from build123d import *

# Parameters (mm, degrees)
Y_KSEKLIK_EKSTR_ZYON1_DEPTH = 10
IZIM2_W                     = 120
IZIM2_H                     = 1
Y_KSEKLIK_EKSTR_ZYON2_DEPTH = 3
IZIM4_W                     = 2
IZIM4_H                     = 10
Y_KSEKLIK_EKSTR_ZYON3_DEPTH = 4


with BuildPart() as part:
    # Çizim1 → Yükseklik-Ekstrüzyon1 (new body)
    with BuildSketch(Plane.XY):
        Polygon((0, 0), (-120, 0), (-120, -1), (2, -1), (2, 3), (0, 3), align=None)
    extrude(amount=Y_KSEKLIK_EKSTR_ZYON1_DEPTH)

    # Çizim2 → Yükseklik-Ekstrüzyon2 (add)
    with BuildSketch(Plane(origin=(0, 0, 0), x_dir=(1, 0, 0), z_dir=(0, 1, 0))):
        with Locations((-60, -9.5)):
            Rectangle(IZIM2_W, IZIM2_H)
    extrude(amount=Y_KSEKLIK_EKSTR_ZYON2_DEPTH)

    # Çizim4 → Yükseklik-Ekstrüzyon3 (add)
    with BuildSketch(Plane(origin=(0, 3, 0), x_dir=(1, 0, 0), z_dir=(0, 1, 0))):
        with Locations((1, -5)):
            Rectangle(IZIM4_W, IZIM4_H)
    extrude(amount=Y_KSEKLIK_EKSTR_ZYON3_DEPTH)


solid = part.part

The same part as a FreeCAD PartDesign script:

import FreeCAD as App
import Part
import Sketcher

V = App.Vector

doc = App.newDocument("Part")
body = doc.addObject("PartDesign::Body", "Body")

# Sketch on XY plane
sketch1 = doc.addObject("Sketcher::SketchObject", "Sketch")
body.addObject(sketch1)
sketch1.AttachmentSupport = (doc.XY_Plane, [""])
sketch1.MapMode = "FlatFace"
sketch1.addGeometry([
    Part.LineSegment(V(0, 0, 0), V(-120, 0, 0)),  # 0
    Part.LineSegment(V(-120, 0, 0), V(-120, -1, 0)),  # 1
    Part.LineSegment(V(-120, -1, 0), V(2, -1, 0)),  # 2
    Part.LineSegment(V(2, -1, 0), V(2, 3, 0)),  # 3
    Part.LineSegment(V(2, 3, 0), V(0, 3, 0)),  # 4
    Part.LineSegment(V(0, 3, 0), V(0, 0, 0)),  # 5
], False)
sketch1.addConstraint([
    Sketcher.Constraint("Coincident", 0, 2, 1, 1),
    Sketcher.Constraint("Coincident", 1, 2, 2, 1),
    Sketcher.Constraint("Coincident", 2, 2, 3, 1),
    Sketcher.Constraint("Coincident", 3, 2, 4, 1),
    Sketcher.Constraint("Coincident", 4, 2, 5, 1),
    Sketcher.Constraint("Coincident", 5, 2, 0, 1),
    Sketcher.Constraint("Horizontal", 0),
    Sketcher.Constraint("Vertical", 1),
    Sketcher.Constraint("Horizontal", 2),
    Sketcher.Constraint("Vertical", 3),
    Sketcher.Constraint("Horizontal", 4),
    Sketcher.Constraint("Vertical", 5),
    Sketcher.Constraint("Coincident", 5, 2, -1, 1),
    Sketcher.Constraint("DistanceX", 0, 2, 0, 1, 120.0),
    Sketcher.Constraint("DistanceX", 2, 1, 2, 2, 122.0),
    Sketcher.Constraint("DistanceY", 1, 2, 1, 1, 1.0),
    Sketcher.Constraint("DistanceY", 3, 1, 3, 2, 4.0),
])
pad1 = doc.addObject("PartDesign::Pad", "Pad")
body.addObject(pad1)
pad1.Profile = sketch1
pad1.Length = 10

# Sketch on XZ plane
sketch2 = doc.addObject("Sketcher::SketchObject", "Sketch001")
body.addObject(sketch2)
sketch2.AttachmentSupport = (doc.XZ_Plane, [""])
sketch2.MapMode = "FlatFace"
sketch2.addGeometry([
    Part.LineSegment(V(-120, 9, 0), V(-120, 10, 0)),
    Part.LineSegment(V(-120, 10, 0), V(0, 10, 0)),
    Part.LineSegment(V(0, 10, 0), V(0, 9, 0)),
    Part.LineSegment(V(0, 9, 0), V(-120, 9, 0)),
], False)
sketch2.addConstraint([
    Sketcher.Constraint("Coincident", 0, 2, 1, 1),
    Sketcher.Constraint("Coincident", 1, 2, 2, 1),
    Sketcher.Constraint("Coincident", 2, 2, 3, 1),
    Sketcher.Constraint("Coincident", 3, 2, 0, 1),
    Sketcher.Constraint("Vertical", 0),
    Sketcher.Constraint("Horizontal", 1),
    Sketcher.Constraint("Vertical", 2),
    Sketcher.Constraint("Horizontal", 3),
    Sketcher.Constraint("PointOnObject", 1, 2, -2),
    Sketcher.Constraint("DistanceX", 1, 1, 1, 2, 120.0),
    Sketcher.Constraint("DistanceY", 0, 1, 0, 2, 1.0),
    Sketcher.Constraint("DistanceY", -1, 1, 0, 2, 10.0),
])
pad2 = doc.addObject("PartDesign::Pad", "Pad001")
body.addObject(pad2)
pad2.Profile = sketch2
pad2.Length = 3
pad2.Reversed = True

# Sketch on XZ plane
sketch3 = doc.addObject("Sketcher::SketchObject", "Sketch002")
body.addObject(sketch3)
sketch3.AttachmentSupport = (doc.XZ_Plane, [""])
sketch3.MapMode = "FlatFace"
sketch3.AttachmentOffset = App.Placement(V(0, 0, -3), App.Rotation())
sketch3.addGeometry([
    Part.LineSegment(V(0, 0, 0), V(0, 10, 0)),
    Part.LineSegment(V(0, 10, 0), V(2, 10, 0)),
    Part.LineSegment(V(2, 10, 0), V(2, 0, 0)),
    Part.LineSegment(V(2, 0, 0), V(0, 0, 0)),
], False)
sketch3.addConstraint([
    Sketcher.Constraint("Coincident", 0, 2, 1, 1),
    Sketcher.Constraint("Coincident", 1, 2, 2, 1),
    Sketcher.Constraint("Coincident", 2, 2, 3, 1),
    Sketcher.Constraint("Coincident", 3, 2, 0, 1),
    Sketcher.Constraint("Vertical", 0),
    Sketcher.Constraint("Horizontal", 1),
    Sketcher.Constraint("Vertical", 2),
    Sketcher.Constraint("Horizontal", 3),
    Sketcher.Constraint("Coincident", 3, 2, -1, 1),
    Sketcher.Constraint("DistanceX", 1, 1, 1, 2, 2.0),
    Sketcher.Constraint("DistanceY", 0, 1, 0, 2, 10.0),
])
pad3 = doc.addObject("PartDesign::Pad", "Pad002")
body.addObject(pad3)
pad3.Profile = sketch3
pad3.Length = 4
pad3.Reversed = True

doc.recompute()
